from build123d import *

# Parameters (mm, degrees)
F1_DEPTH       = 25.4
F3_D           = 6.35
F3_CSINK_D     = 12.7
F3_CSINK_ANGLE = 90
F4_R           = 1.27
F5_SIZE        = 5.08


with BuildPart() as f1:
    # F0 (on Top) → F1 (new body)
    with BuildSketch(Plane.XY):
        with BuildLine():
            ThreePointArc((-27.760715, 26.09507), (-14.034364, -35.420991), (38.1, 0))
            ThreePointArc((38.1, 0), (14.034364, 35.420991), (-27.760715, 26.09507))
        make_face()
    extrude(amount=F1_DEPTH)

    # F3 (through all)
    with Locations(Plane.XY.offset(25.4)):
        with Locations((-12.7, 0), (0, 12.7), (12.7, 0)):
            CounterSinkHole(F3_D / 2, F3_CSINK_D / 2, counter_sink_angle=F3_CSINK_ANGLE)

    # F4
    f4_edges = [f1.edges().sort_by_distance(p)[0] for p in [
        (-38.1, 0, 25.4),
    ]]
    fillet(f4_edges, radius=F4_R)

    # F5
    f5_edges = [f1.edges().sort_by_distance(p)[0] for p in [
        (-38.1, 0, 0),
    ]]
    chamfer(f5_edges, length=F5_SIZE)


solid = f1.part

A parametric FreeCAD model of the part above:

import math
import FreeCAD as App
import Part
import Sketcher
Q = App.Units.Quantity


def edges_at(feature, points):
    """Names of the edges that pass closest to the given points."""
    edges = feature.Shape.Edges
    near = lambda p: min(range(len(edges)), key=lambda i: edges[i].distToShape(Part.Vertex(*p))[0])
    return sorted({f"Edge{near(p) + 1}" for p in points})

doc = App.newDocument("Part")
body = doc.addObject("PartDesign::Body", "Body")

# Sketch on XY plane
sketch1 = doc.addObject("Sketcher::SketchObject", "Sketch")
body.addObject(sketch1)
sketch1.AttachmentSupport = (doc.XY_Plane, [""])
sketch1.MapMode = "FlatFace"
sketch1.addGeometry([
    Part.ArcOfCircle(Part.Circle(App.Vector(0, 0, 0), App.Vector(0, 0, 1), 38), math.radians(137), math.radians(360)),
    Part.ArcOfCircle(Part.Circle(App.Vector(0, 0, 0), App.Vector(0, 0, 1), 38), math.radians(0), math.radians(137)),
], False)
sketch1.addConstraint([
    Sketcher.Constraint("Tangent", 0, 1, 1, 2),
    Sketcher.Constraint("Coincident", 1, 1, 0, 2),
    Sketcher.Constraint("Coincident", 0, 3, -1, 1),
    Sketcher.Constraint("PointOnObject", 1, 1, -1),
    Sketcher.Constraint("Radius", 0, Q("1.5 in")),
    Sketcher.Constraint("DistanceY", -1, 1, 0, 1, 26.09507),
])
pad1 = doc.addObject("PartDesign::Pad", "Pad")
body.addObject(pad1)
pad1.Profile = sketch1
pad1.Length = Q("1 in")

# Sketch on XY plane
sketch2 = doc.addObject("Sketcher::SketchObject", "Sketch001")
body.addObject(sketch2)
sketch2.AttachmentSupport = (doc.XY_Plane, [""])
sketch2.MapMode = "FlatFace"
sketch2.AttachmentOffset = App.Placement(App.Vector(0, 0, 1 * 25.4), App.Rotation())
sketch2.addGeometry([
    Part.Circle(App.Vector(-12.7, 0, 0), App.Vector(0, 0, 1), 3.2),
    Part.Circle(App.Vector(0, 12.7, 0), App.Vector(0, 0, 1), 3.2),
    Part.Circle(App.Vector(12.7, 0, 0), App.Vector(0, 0, 1), 3.2),
], False)
sketch2.addConstraint([
    Sketcher.Constraint("Equal", 0, 1),
    Sketcher.Constraint("Equal", 1, 2),
    Sketcher.Constraint("Symmetric", 0, 3, 2, 3, -1, 1),
    Sketcher.Constraint("PointOnObject", 0, 3, -1),
    Sketcher.Constraint("PointOnObject", 1, 3, -2),
    Sketcher.Constraint("Diameter", 0, Q("0.25 in")),
    Sketcher.Constraint("DistanceX", 0, 3, 2, 3, Q("1 in")),
    Sketcher.Constraint("DistanceY", -1, 1, 1, 3, Q("0.5 in")),
])
doc.recompute()
hole = doc.addObject("PartDesign::Hole", "Hole")
body.addObject(hole)
hole.Profile = sketch2
hole.ThreadType = "None"
hole.Diameter = Q("0.25 in")
hole.DepthType = "ThroughAll"
hole.HoleCutType = "Countersink"
hole.HoleCutDiameter = Q("0.5 in")
hole.HoleCutCountersinkAngle = 90
doc.recompute()

fillet = doc.addObject("PartDesign::Fillet", "Fillet")
body.addObject(fillet)
fillet.Base = (hole, edges_at(hole, [(-14.034, -35.421, 25.4)]))
fillet.Radius = Q("0.05 in")
doc.recompute()

chamfer = doc.addObject("PartDesign::Chamfer", "Chamfer")
body.addObject(chamfer)
chamfer.Base = (fillet, edges_at(fillet, [(-14.034, -35.421, 0)]))
chamfer.Size = Q("0.2 in")

doc.recompute()
